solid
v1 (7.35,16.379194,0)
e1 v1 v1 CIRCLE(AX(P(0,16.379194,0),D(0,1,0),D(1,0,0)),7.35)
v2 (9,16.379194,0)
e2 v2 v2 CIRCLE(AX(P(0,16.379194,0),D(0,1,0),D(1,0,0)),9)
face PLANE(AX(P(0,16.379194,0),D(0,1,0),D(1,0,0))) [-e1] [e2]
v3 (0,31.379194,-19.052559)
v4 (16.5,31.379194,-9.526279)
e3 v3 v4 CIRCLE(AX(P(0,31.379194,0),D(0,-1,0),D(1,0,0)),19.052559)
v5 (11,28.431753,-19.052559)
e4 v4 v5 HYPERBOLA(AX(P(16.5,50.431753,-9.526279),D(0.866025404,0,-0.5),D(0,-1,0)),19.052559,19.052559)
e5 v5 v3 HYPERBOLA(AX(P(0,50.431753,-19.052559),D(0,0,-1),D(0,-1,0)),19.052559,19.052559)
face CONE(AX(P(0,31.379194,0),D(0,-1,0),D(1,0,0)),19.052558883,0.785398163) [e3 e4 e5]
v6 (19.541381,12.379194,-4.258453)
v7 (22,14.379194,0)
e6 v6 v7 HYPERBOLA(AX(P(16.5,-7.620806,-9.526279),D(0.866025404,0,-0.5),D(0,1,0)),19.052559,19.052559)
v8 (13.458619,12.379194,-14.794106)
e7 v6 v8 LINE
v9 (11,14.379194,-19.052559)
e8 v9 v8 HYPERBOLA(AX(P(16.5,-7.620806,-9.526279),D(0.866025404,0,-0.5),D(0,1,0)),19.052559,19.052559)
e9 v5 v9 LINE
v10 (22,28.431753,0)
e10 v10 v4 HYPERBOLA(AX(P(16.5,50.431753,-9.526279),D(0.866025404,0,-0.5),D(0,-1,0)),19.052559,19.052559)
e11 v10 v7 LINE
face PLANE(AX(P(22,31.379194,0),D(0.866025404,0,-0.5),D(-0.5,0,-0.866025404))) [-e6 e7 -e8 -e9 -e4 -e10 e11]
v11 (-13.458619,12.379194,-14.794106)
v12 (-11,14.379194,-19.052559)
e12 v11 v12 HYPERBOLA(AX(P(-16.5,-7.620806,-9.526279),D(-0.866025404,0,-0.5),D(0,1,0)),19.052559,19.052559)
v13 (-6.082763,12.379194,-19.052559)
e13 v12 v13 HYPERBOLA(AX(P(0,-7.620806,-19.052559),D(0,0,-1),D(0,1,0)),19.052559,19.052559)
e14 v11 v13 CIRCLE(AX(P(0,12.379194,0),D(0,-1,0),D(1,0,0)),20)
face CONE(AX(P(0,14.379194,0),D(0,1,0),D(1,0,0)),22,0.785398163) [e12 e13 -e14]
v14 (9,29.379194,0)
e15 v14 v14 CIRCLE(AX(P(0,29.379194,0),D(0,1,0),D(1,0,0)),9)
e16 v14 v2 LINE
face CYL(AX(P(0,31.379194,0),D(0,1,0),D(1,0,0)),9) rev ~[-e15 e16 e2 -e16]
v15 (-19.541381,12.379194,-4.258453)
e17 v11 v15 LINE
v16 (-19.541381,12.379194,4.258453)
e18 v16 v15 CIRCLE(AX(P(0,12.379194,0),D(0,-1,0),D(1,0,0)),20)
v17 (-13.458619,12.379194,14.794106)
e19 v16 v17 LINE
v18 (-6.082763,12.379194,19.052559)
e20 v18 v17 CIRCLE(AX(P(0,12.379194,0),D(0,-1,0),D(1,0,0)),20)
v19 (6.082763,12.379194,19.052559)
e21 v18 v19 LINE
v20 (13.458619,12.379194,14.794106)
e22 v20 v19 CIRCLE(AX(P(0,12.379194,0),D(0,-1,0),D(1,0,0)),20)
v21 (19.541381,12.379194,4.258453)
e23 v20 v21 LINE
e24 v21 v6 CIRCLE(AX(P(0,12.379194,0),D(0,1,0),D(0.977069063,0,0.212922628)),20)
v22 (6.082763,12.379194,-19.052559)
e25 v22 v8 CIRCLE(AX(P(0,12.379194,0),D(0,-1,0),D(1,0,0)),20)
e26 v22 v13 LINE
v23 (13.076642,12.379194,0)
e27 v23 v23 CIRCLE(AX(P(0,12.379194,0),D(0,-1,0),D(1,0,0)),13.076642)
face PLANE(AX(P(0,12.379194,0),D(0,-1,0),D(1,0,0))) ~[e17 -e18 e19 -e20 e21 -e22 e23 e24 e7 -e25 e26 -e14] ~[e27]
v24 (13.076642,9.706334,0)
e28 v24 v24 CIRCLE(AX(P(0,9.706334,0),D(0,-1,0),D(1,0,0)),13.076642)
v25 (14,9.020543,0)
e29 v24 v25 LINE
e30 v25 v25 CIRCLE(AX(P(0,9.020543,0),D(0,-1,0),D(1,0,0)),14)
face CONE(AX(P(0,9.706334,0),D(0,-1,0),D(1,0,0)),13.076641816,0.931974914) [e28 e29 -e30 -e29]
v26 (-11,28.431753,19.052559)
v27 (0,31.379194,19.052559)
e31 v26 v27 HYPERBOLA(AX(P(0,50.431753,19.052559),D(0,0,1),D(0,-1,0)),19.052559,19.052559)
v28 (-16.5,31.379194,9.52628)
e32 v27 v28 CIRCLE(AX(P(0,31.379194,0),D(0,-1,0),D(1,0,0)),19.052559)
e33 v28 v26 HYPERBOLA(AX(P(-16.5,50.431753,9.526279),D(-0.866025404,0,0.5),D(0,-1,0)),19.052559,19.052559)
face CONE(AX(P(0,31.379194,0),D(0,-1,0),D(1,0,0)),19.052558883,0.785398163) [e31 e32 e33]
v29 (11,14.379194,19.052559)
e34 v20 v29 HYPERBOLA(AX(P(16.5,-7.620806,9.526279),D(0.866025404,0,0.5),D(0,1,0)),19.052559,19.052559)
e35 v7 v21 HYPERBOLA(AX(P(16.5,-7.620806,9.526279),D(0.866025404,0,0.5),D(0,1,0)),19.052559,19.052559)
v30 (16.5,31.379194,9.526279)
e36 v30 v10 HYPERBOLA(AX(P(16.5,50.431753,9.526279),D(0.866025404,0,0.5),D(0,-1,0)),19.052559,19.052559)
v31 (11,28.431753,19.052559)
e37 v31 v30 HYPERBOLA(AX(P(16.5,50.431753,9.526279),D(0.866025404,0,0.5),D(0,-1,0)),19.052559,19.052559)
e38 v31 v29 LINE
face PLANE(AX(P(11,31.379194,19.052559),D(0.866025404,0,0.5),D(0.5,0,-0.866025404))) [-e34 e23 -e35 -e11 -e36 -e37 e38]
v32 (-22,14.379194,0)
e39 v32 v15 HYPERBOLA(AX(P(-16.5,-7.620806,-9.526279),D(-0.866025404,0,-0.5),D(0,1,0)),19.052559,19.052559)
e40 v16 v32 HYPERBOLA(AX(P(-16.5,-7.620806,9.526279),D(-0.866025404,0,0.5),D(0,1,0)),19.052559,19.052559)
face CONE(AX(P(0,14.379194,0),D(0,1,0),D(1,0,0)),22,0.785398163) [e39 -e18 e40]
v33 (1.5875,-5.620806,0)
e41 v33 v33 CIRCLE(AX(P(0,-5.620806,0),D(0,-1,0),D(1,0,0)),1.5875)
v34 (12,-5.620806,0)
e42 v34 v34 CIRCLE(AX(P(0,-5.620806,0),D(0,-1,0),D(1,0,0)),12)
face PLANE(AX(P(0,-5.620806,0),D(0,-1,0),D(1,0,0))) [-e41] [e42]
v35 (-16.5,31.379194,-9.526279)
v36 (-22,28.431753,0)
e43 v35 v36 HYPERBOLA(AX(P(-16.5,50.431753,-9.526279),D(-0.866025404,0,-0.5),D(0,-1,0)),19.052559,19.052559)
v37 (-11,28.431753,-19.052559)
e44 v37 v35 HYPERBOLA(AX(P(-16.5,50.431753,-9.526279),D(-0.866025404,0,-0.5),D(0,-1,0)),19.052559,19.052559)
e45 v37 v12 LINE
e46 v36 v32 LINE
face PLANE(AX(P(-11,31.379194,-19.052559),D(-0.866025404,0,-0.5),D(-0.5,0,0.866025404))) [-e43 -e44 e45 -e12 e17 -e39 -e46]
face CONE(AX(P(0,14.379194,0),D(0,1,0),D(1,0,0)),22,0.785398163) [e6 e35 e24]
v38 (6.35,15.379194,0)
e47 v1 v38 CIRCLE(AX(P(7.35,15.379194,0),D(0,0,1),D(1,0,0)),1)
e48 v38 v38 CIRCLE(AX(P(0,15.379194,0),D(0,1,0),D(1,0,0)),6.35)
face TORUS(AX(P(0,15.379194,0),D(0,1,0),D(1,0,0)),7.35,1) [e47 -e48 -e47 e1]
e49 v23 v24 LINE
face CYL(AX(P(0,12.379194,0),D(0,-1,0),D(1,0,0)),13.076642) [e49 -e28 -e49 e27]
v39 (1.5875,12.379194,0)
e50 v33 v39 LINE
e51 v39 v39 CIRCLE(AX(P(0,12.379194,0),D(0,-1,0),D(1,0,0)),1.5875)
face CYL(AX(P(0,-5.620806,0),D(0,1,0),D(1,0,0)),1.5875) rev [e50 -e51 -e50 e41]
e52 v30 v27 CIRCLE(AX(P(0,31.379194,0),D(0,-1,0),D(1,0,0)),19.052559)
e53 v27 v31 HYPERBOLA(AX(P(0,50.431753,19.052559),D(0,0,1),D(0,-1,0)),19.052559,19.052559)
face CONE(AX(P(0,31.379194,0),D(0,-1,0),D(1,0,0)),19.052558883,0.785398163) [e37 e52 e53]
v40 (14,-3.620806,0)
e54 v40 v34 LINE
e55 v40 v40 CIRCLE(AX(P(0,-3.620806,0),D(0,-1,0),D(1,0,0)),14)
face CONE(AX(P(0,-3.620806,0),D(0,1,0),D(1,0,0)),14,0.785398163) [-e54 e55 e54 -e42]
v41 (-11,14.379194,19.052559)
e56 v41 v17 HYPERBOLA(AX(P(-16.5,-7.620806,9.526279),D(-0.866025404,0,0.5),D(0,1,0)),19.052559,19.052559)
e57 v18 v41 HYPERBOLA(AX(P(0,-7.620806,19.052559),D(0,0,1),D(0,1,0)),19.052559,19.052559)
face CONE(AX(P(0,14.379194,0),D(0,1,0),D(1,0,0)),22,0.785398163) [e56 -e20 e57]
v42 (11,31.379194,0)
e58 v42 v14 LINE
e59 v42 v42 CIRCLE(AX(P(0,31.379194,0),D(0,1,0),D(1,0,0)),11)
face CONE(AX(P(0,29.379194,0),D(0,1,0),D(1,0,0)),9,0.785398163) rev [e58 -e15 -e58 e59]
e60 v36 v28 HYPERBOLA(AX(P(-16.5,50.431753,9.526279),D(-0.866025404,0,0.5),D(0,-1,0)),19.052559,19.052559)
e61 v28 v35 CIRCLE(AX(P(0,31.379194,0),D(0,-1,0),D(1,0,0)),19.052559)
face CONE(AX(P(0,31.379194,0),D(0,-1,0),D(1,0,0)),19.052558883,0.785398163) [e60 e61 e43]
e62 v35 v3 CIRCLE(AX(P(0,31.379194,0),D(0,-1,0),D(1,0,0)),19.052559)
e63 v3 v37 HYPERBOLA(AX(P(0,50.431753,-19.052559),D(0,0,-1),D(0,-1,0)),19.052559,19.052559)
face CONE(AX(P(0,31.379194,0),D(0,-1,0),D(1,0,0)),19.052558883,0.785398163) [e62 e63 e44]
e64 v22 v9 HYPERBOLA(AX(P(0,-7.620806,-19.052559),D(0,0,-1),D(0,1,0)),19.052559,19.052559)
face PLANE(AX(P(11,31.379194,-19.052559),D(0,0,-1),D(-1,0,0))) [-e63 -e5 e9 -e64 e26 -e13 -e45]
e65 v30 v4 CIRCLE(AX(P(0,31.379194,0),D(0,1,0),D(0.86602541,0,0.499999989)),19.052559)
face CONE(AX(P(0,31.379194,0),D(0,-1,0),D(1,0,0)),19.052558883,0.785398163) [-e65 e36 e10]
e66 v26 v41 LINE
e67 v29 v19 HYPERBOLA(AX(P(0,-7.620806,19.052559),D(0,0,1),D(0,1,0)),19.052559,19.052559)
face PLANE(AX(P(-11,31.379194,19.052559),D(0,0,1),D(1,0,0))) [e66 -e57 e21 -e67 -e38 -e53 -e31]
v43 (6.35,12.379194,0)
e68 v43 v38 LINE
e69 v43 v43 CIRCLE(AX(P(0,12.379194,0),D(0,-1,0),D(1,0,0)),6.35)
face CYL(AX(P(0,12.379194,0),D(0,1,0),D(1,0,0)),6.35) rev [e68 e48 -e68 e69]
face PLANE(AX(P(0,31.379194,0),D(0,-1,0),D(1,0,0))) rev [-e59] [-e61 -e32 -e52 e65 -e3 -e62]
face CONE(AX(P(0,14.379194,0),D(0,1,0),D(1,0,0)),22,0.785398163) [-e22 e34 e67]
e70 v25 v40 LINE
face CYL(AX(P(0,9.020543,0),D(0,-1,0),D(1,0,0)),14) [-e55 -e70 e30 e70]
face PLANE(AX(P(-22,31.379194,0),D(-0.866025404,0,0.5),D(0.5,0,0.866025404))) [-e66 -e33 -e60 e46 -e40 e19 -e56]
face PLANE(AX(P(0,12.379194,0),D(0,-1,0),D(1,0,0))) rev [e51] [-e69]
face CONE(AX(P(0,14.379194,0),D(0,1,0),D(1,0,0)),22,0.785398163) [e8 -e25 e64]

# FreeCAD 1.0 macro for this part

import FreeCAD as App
import Part
import Sketcher

V = App.Vector
Q = App.Units.Quantity


def edges_at(feature, points):
    """Names of the edges that pass closest to the given points."""
    edges = feature.Shape.Edges
    near = lambda p: min(range(len(edges)), key=lambda i: edges[i].distToShape(Part.Vertex(*p))[0])
    return sorted({f"Edge{near(p) + 1}" for p in points})

doc = App.newDocument("Part")
body = doc.addObject("PartDesign::Body", "Body")

# Sketch on XY plane
sketch1 = doc.addObject("Sketcher::SketchObject", "Sketch")
body.addObject(sketch1)
sketch1.AttachmentSupport = (doc.XY_Plane, [""])
sketch1.MapMode = "FlatFace"
sketch1.addGeometry([
    Part.LineSegment(V(20, 31.4, 0), V(6.3, 31.4, 0)),  # 0
    Part.LineSegment(V(6.3, 31.4, 0), V(6.3, 12.4, 0)),  # 1
    Part.LineSegment(V(6.3, 12.4, 0), V(1.6, 12.4, 0)),  # 2
    Part.LineSegment(V(1.6, 12.4, 0), V(1.6, -5.6, 0)),  # 3
    Part.LineSegment(V(1.6, -5.6, 0), V(12, -5.6, 0)),  # 4
    Part.LineSegment(V(12, -5.6, 0), V(14, -3.6, 0)),  # 5
    Part.LineSegment(V(14, -3.6, 0), V(14, 9, 0)),  # 6
    Part.LineSegment(V(14, 9, 0), V(13.1, 9.7, 0)),  # 7
    Part.LineSegment(V(13.1, 9.7, 0), V(13.1, 12.4, 0)),  # 8
    Part.LineSegment(V(13.1, 12.4, 0), V(20, 12.4, 0)),  # 9
    Part.LineSegment(V(20, 12.4, 0), V(22, 14.4, 0)),  # 10
    Part.LineSegment(V(22, 14.4, 0), V(22, 29.4, 0)),  # 11
    Part.LineSegment(V(22, 29.4, 0), V(20, 31.4, 0)),  # 12
], False)
sketch1.addConstraint([
    Sketcher.Constraint("Coincident", 0, 2, 1, 1),
    Sketcher.Constraint("Coincident", 1, 2, 2, 1),
    Sketcher.Constraint("Coincident", 2, 2, 3, 1),
    Sketcher.Constraint("Coincident", 3, 2, 4, 1),
    Sketcher.Constraint("Coincident", 4, 2, 5, 1),
    Sketcher.Constraint("Coincident", 5, 2, 6, 1),
    Sketcher.Constraint("Coincident", 6, 2, 7, 1),
    Sketcher.Constraint("Coincident", 7, 2, 8, 1),
    Sketcher.Constraint("Coincident", 8, 2, 9, 1),
    Sketcher.Constraint("Coincident", 9, 2, 10, 1),
    Sketcher.Constraint("Coincident", 10, 2, 11, 1),
    Sketcher.Constraint("Coincident", 11, 2, 12, 1),
    Sketcher.Constraint("Coincident", 12, 2, 0, 1),
    Sketcher.Constraint("Horizontal", 0),
    Sketcher.Constraint("Vertical", 1),
    Sketcher.Constraint("Horizontal", 2),
    Sketcher.Constraint("Vertical", 3),
    Sketcher.Constraint("Horizontal", 4),
    Sketcher.Constraint("Vertical", 6),
    Sketcher.Constraint("Vertical", 8),
    Sketcher.Constraint("Horizontal", 9),
    Sketcher.Constraint("Vertical", 11),
    Sketcher.Constraint("Parallel", 5, 10),
    Sketcher.Constraint("Perpendicular", 10, 12),
    Sketcher.Constraint("Horizontal", 2, 2, 8, 2),
    Sketcher.Constraint("Vertical", 9, 2, 12, 2),
    Sketcher.Constraint("Equal", 5, 10),
    Sketcher.Constraint("Equal", 10, 12),
    Sketcher.Constraint("DistanceY", 1, 2, 1, 1, 19.0),
    Sketcher.Constraint("DistanceY", 3, 2, 3, 1, 18.0),
    Sketcher.Constraint("DistanceY", 11, 1, 11, 2, 15.0),
    Sketcher.Constraint("DistanceX", -1, 1, 4, 2, 12.0),
    Sketcher.Constraint("DistanceX", -1, 1, 9, 2, 20.0),
    Sketcher.Constraint("DistanceX", 0, 2, 0, 1, 13.65),
    Sketcher.Constraint("DistanceX", 2, 2, 2, 1, 4.7625),
    Sketcher.Constraint("DistanceX", 9, 1, 9, 2, 6.923358),
    Sketcher.Constraint("DistanceY", 6, 1, 6, 2, 12.641349),
    Sketcher.Constraint("DistanceY", 8, 1, 8, 2, 2.67286),
    Sketcher.Constraint("DistanceY", -1, 1, 0, 2, 31.379194),
])
revolution = doc.addObject("PartDesign::Revolution", "Revolution")
body.addObject(revolution)
revolution.Profile = sketch1
revolution.ReferenceAxis = (sketch1, ["V_Axis"])
revolution.Angle = 360

# Sketch on XZ plane
sketch2 = doc.addObject("Sketcher::SketchObject", "Sketch001")
body.addObject(sketch2)
sketch2.AttachmentSupport = (doc.XZ_Plane, [""])
sketch2.MapMode = "FlatFace"
sketch2.AttachmentOffset = App.Placement(V(0, 0, -31.379194), App.Rotation())
sketch2.addGeometry([
    Part.LineSegment(V(-30, -30, 0), V(-30, 30, 0)),  # 0
    Part.LineSegment(V(-30, 30, 0), V(30, 30, 0)),  # 1
    Part.LineSegment(V(30, 30, 0), V(30, -30, 0)),  # 2
    Part.LineSegment(V(30, -30, 0), V(-30, -30, 0)),  # 3
    Part.LineSegment(V(11, -19, 0), V(22, 0, 0)),  # 4
    Part.LineSegment(V(22, 0, 0), V(11, 19, 0)),  # 5
    Part.LineSegment(V(11, 19, 0), V(-11, 19, 0)),  # 6
    Part.LineSegment(V(-11, 19, 0), V(-22, 0, 0)),  # 7
    Part.LineSegment(V(-22, 0, 0), V(-11, -19, 0)),  # 8
    Part.LineSegment(V(-11, -19, 0), V(11, -19, 0)),  # 9
], False)
sketch2.addConstraint([
    Sketcher.Constraint("Coincident", 0, 2, 1, 1),
    Sketcher.Constraint("Coincident", 1, 2, 2, 1),
    Sketcher.Constraint("Coincident", 2, 2, 3, 1),
    Sketcher.Constraint("Coincident", 3, 2, 0, 1),
    Sketcher.Constraint("Coincident", 4, 2, 5, 1),
    Sketcher.Constraint("Coincident", 5, 2, 6, 1),
    Sketcher.Constraint("Coincident", 6, 2, 7, 1),
    Sketcher.Constraint("Coincident", 7, 2, 8, 1),
    Sketcher.Constraint("Coincident", 8, 2, 9, 1),
    Sketcher.Constraint("Coincident", 9, 2, 4, 1),
    Sketcher.Constraint("Vertical", 0),
    Sketcher.Constraint("Horizontal", 1),
    Sketcher.Constraint("Vertical", 2),
    Sketcher.Constraint("Horizontal", 3),
    Sketcher.Constraint("Horizontal", 6),
    Sketcher.Constraint("Horizontal", 9),
    Sketcher.Constraint("Symmetric", 0, 2, 2, 2, -1, 1),
    Sketcher.Constraint("Symmetric", 4, 2, 7, 2, -1, 1),
    Sketcher.Constraint("Symmetric", 5, 2, 8, 2, -1, 1),
    Sketcher.Constraint("PointOnObject", 4, 2, -1),
    Sketcher.Constraint("Parallel", 4, 7),
    Sketcher.Constraint("Vertical", 6, 2, 8, 2),
    Sketcher.Constraint("Equal", 3, 0),
    Sketcher.Constraint("DistanceX", 6, 2, 6, 1, 22.0),
    Sketcher.Constraint("Angle", 4, Q("60 deg")),
    Sketcher.Constraint("Distance", 4, 22.0),
    Sketcher.Constraint("DistanceX", 1, 1, 1, 2, 60.478),
])
pocket1 = doc.addObject("PartDesign::Pocket", "Pocket")
body.addObject(pocket1)
pocket1.Profile = sketch2
pocket1.Length = 70
pocket1.Reversed = True

# Sketch on XZ plane
sketch3 = doc.addObject("Sketcher::SketchObject", "Sketch002")
body.addObject(sketch3)
sketch3.AttachmentSupport = (doc.XZ_Plane, [""])
sketch3.MapMode = "FlatFace"
sketch3.AttachmentOffset = App.Placement(V(0, 0, -31.379194), App.Rotation())
sketch3.addGeometry([
    Part.LineSegment(V(-100, -97, 0), V(-100, 97, 0)),  # 0
    Part.LineSegment(V(-100, 97, 0), V(100, 97, 0)),  # 1
    Part.LineSegment(V(100, 97, 0), V(100, -97, 0)),  # 2
    Part.LineSegment(V(100, -97, 0), V(-100, -97, 0)),  # 3
    Part.Circle(V(0, 0, 0), V(0, 0, 1), 19),  # 4
], False)
sketch3.addConstraint([
    Sketcher.Constraint("Coincident", 0, 2, 1, 1),
    Sketcher.Constraint("Coincident", 1, 2, 2, 1),
    Sketcher.Constraint("Coincident", 2, 2, 3, 1),
    Sketcher.Constraint("Coincident", 3, 2, 0, 1),
    Sketcher.Constraint("Vertical", 0),
    Sketcher.Constraint("Horizontal", 1),
    Sketcher.Constraint("Vertical", 2),
    Sketcher.Constraint("Horizontal", 3),
    Sketcher.Constraint("Coincident", 4, 3, -1, 1),
    Sketcher.Constraint("Symmetric", 0, 2, 2, 2, -1, 1),
    Sketcher.Constraint("DistanceY", 0, 1, 0, 2, 193.9),
    Sketcher.Constraint("DistanceX", 1, 1, 1, 2, 199.794),
    Sketcher.Constraint("Diameter", 4, 38.105118),
])
pocket2 = doc.addObject("PartDesign::Pocket", "Pocket001")
body.addObject(pocket2)
pocket2.Profile = sketch3
pocket2.Length = 70
pocket2.Reversed = True
pocket2.TaperAngle = 45

# Sketch on XZ plane
sketch4 = doc.addObject("Sketcher::SketchObject", "Sketch003")
body.addObject(sketch4)
sketch4.AttachmentSupport = (doc.XZ_Plane, [""])
sketch4.MapMode = "FlatFace"
sketch4.AttachmentOffset = App.Placement(V(0, 0, -31.379194), App.Rotation())
sketch4.addGeometry(Part.Circle(V(0, 0, 0), V(0, 0, 1), 9), False)
sketch4.addConstraint([
    Sketcher.Constraint("Coincident", 0, 3, -1, 1),
    Sketcher.Constraint("Diameter", 0, 18.0),
])
pocket3 = doc.addObject("PartDesign::Pocket", "Pocket002")
body.addObject(pocket3)
pocket3.Profile = sketch4
pocket3.Length = 15
pocket3.Reversed = True
doc.recompute()

chamfer = doc.addObject("PartDesign::Chamfer", "Chamfer")
body.addObject(chamfer)
chamfer.Base = (pocket3, edges_at(pocket3, [(-9, 31.379, 0)]))
chamfer.Size = 2
doc.recompute()

fillet = doc.addObject("PartDesign::Fillet", "Fillet")
body.addObject(fillet)
fillet.Base = (chamfer, edges_at(chamfer, [(-6.35, 16.379, 0)]))
fillet.Radius = 1

doc.recompute()
